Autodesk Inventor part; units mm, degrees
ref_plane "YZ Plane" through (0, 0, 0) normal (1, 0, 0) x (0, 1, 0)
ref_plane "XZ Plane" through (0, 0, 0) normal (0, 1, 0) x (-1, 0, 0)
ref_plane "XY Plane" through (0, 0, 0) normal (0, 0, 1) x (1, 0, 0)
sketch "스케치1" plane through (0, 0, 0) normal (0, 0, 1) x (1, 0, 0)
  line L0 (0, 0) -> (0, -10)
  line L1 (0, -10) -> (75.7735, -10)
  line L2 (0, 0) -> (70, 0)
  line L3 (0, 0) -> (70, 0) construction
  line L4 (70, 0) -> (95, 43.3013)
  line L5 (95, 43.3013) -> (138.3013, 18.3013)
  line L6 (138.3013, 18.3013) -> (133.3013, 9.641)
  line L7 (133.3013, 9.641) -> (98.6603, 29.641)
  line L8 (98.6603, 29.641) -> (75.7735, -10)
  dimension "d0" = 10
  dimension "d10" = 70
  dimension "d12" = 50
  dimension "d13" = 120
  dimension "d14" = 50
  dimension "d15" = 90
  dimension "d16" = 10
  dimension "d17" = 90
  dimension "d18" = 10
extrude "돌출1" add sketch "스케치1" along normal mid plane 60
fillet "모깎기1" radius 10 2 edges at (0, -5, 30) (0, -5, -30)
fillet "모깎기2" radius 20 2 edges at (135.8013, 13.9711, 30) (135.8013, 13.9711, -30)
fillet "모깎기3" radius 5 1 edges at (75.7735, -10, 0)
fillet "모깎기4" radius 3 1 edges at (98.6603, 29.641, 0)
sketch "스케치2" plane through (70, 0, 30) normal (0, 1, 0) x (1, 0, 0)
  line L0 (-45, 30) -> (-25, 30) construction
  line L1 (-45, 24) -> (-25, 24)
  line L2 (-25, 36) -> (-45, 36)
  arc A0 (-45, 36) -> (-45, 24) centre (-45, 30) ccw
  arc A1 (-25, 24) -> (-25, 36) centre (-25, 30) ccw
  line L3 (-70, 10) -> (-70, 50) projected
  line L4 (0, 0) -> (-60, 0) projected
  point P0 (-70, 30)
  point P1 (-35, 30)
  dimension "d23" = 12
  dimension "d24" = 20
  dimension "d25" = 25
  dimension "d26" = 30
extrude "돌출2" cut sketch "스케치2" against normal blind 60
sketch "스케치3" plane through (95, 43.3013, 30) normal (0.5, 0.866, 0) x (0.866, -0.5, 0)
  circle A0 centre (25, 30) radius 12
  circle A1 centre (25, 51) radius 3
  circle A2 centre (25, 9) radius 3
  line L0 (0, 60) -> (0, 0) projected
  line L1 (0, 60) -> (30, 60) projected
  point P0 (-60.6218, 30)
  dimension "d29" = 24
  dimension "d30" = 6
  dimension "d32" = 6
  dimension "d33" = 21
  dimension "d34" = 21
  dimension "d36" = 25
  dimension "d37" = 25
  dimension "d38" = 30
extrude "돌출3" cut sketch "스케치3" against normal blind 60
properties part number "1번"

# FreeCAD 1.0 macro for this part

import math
import FreeCAD as App
import Part
import Sketcher
Q = App.Units.Quantity


def edges_at(feature, points):
    """Names of the edges that pass closest to the given points."""
    edges = feature.Shape.Edges
    near = lambda p: min(range(len(edges)), key=lambda i: edges[i].distToShape(Part.Vertex(*p))[0])
    return sorted({f"Edge{near(p) + 1}" for p in points})


def add_polygon(sketch, points):
    """Adds a closed chain of lines whose ends are joined by coincident constraints."""
    first, n = sketch.GeometryCount, len(points)
    for a, b in zip(points, points[1:] + points[:1]):
        sketch.addGeometry(Part.LineSegment(App.Vector(*a, 0), App.Vector(*b, 0)), False)
    for i in range(n):
        sketch.addConstraint(Sketcher.Constraint("Coincident", first + i, 2, first + (i + 1) % n, 1))

doc = App.newDocument("Part")
body = doc.addObject("PartDesign::Body", "Body")

sketch1 = body.newObject("Sketcher::SketchObject", "Sketch")
sketch1.AttachmentSupport = (doc.getObject("XY_Plane"), [""])
sketch1.MapMode = "FlatFace"
add_polygon(sketch1, [(70, 0), (0, 0), (0, -10), (76, -10), (99, 30), (133, 10), (138, 18), (95, 43)])
sketch1.addConstraint(Sketcher.Constraint("Horizontal", 0))
sketch1.addConstraint(Sketcher.Constraint("Vertical", 1))
sketch1.addConstraint(Sketcher.Constraint("Horizontal", 2))
sketch1.addConstraint(Sketcher.Constraint("Coincident", 0, 2, -1, 1))
sketch1.addConstraint(Sketcher.Constraint("Perpendicular", 3, 4))
sketch1.addConstraint(Sketcher.Constraint("Perpendicular", 4, 5))
sketch1.addConstraint(Sketcher.Constraint("Perpendicular", 5, 6))
sketch1.addConstraint(Sketcher.Constraint("Perpendicular", 6, 7))
sketch1.addConstraint(Sketcher.Constraint("Equal", 6, 7))
sketch1.addConstraint(Sketcher.Constraint("DistanceX", 0, 2, 0, 1, 70.0))
sketch1.addConstraint(Sketcher.Constraint("DistanceY", 1, 2, 1, 1, 10.0))
sketch1.addConstraint(Sketcher.Constraint("Angle", 7, Q("-120 deg")))
sketch1.addConstraint(Sketcher.Constraint("Distance", 5, 10.0))
sketch1.addConstraint(Sketcher.Constraint("Distance", 6, 50.0))
sketch1.addConstraint(Sketcher.Constraint("Distance", 4, 40.0))
pad1 = body.newObject("PartDesign::Pad", "Pad")
pad1.Profile = sketch1
pad1.Length = 60
pad1.Midplane = True
doc.recompute()

fillet = body.newObject("PartDesign::Fillet", "Fillet")
fillet.Base = (pad1, edges_at(pad1, [(0, -5, 30), (0, -5, -30)]))
fillet.Radius = 10
doc.recompute()

fillet2 = body.newObject("PartDesign::Fillet", "Fillet001")
fillet2.Base = (fillet, edges_at(fillet, [(135.801, 13.971, 30), (135.801, 13.971, -30)]))
fillet2.Radius = 20
doc.recompute()

fillet3 = body.newObject("PartDesign::Fillet", "Fillet002")
fillet3.Base = (fillet2, edges_at(fillet2, [(75.773, -10, 0)]))
fillet3.Radius = 5
doc.recompute()

fillet4 = body.newObject("PartDesign::Fillet", "Fillet003")
fillet4.Base = (fillet3, edges_at(fillet3, [(98.66, 29.641, 0)]))
fillet4.Radius = 3

sketch2 = body.newObject("Sketcher::SketchObject", "Sketch001")
sketch2.AttachmentSupport = (doc.getObject("XZ_Plane"), [""])
sketch2.MapMode = "FlatFace"
sketch2.addGeometry(Part.ArcOfCircle(Part.Circle(App.Vector(25, 0, 0), App.Vector(0, 0, 1), 6), math.radians(90), math.radians(270)), False)
sketch2.addGeometry(Part.LineSegment(App.Vector(25, 6, 0), App.Vector(45, 6, 0)), False)
sketch2.addGeometry(Part.ArcOfCircle(Part.Circle(App.Vector(45, 0, 0), App.Vector(0, 0, 1), 6), math.radians(-90), math.radians(90)), False)
sketch2.addGeometry(Part.LineSegment(App.Vector(45, -6, 0), App.Vector(25, -6, 0)), False)
sketch2.addConstraint(Sketcher.Constraint("Tangent", 0, 1, 1, 1))
sketch2.addConstraint(Sketcher.Constraint("Tangent", 1, 2, 2, 2))
sketch2.addConstraint(Sketcher.Constraint("Tangent", 2, 1, 3, 1))
sketch2.addConstraint(Sketcher.Constraint("Tangent", 3, 2, 0, 2))
sketch2.addConstraint(Sketcher.Constraint("Horizontal", 1))
sketch2.addConstraint(Sketcher.Constraint("Horizontal", 3))
sketch2.addConstraint(Sketcher.Constraint("PointOnObject", 0, 3, -1))
sketch2.addConstraint(Sketcher.Constraint("Radius", 0, 6.0))
sketch2.addConstraint(Sketcher.Constraint("DistanceX", 1, 1, 1, 2, 20.0))
sketch2.addConstraint(Sketcher.Constraint("DistanceX", -1, 1, 0, 3, 25.0))
pocket1 = body.newObject("PartDesign::Pocket", "Pocket")
pocket1.Profile = sketch2
pocket1.Length = 60
pocket1.Reversed = True

sketch3 = body.newObject("Sketcher::SketchObject", "Sketch002")
sketch3.Placement = App.Placement(App.Vector(95, 43.3013, 30), App.Rotation(App.Vector(0.866025404, -0.5, 0), App.Vector(0, 0, -1), App.Vector(0.5, 0.866025404, 0), "ZXY"))
sketch3.addGeometry(Part.Circle(App.Vector(25, 30, 0), App.Vector(0, 0, 1), 12), False)
sketch3.addGeometry(Part.Circle(App.Vector(25, 51, 0), App.Vector(0, 0, 1), 3), False)
sketch3.addGeometry(Part.Circle(App.Vector(25, 9, 0), App.Vector(0, 0, 1), 3), False)
sketch3.addConstraint(Sketcher.Constraint("Equal", 1, 2))
sketch3.addConstraint(Sketcher.Constraint("Vertical", 0, 3, 1, 3))
sketch3.addConstraint(Sketcher.Constraint("Vertical", 1, 3, 2, 3))
sketch3.addConstraint(Sketcher.Constraint("Diameter", 0, 24.0))
sketch3.addConstraint(Sketcher.Constraint("Diameter", 1, 6.0))
sketch3.addConstraint(Sketcher.Constraint("DistanceX", -1, 1, 0, 3, 25.0))
sketch3.addConstraint(Sketcher.Constraint("DistanceY", -1, 1, 0, 3, 30.0))
sketch3.addConstraint(Sketcher.Constraint("DistanceY", 0, 3, 1, 3, 21.0))
sketch3.addConstraint(Sketcher.Constraint("DistanceY", 2, 3, 0, 3, 21.0))
pocket2 = body.newObject("PartDesign::Pocket", "Pocket001")
pocket2.Profile = sketch3
pocket2.Length = 60

doc.recompute()
